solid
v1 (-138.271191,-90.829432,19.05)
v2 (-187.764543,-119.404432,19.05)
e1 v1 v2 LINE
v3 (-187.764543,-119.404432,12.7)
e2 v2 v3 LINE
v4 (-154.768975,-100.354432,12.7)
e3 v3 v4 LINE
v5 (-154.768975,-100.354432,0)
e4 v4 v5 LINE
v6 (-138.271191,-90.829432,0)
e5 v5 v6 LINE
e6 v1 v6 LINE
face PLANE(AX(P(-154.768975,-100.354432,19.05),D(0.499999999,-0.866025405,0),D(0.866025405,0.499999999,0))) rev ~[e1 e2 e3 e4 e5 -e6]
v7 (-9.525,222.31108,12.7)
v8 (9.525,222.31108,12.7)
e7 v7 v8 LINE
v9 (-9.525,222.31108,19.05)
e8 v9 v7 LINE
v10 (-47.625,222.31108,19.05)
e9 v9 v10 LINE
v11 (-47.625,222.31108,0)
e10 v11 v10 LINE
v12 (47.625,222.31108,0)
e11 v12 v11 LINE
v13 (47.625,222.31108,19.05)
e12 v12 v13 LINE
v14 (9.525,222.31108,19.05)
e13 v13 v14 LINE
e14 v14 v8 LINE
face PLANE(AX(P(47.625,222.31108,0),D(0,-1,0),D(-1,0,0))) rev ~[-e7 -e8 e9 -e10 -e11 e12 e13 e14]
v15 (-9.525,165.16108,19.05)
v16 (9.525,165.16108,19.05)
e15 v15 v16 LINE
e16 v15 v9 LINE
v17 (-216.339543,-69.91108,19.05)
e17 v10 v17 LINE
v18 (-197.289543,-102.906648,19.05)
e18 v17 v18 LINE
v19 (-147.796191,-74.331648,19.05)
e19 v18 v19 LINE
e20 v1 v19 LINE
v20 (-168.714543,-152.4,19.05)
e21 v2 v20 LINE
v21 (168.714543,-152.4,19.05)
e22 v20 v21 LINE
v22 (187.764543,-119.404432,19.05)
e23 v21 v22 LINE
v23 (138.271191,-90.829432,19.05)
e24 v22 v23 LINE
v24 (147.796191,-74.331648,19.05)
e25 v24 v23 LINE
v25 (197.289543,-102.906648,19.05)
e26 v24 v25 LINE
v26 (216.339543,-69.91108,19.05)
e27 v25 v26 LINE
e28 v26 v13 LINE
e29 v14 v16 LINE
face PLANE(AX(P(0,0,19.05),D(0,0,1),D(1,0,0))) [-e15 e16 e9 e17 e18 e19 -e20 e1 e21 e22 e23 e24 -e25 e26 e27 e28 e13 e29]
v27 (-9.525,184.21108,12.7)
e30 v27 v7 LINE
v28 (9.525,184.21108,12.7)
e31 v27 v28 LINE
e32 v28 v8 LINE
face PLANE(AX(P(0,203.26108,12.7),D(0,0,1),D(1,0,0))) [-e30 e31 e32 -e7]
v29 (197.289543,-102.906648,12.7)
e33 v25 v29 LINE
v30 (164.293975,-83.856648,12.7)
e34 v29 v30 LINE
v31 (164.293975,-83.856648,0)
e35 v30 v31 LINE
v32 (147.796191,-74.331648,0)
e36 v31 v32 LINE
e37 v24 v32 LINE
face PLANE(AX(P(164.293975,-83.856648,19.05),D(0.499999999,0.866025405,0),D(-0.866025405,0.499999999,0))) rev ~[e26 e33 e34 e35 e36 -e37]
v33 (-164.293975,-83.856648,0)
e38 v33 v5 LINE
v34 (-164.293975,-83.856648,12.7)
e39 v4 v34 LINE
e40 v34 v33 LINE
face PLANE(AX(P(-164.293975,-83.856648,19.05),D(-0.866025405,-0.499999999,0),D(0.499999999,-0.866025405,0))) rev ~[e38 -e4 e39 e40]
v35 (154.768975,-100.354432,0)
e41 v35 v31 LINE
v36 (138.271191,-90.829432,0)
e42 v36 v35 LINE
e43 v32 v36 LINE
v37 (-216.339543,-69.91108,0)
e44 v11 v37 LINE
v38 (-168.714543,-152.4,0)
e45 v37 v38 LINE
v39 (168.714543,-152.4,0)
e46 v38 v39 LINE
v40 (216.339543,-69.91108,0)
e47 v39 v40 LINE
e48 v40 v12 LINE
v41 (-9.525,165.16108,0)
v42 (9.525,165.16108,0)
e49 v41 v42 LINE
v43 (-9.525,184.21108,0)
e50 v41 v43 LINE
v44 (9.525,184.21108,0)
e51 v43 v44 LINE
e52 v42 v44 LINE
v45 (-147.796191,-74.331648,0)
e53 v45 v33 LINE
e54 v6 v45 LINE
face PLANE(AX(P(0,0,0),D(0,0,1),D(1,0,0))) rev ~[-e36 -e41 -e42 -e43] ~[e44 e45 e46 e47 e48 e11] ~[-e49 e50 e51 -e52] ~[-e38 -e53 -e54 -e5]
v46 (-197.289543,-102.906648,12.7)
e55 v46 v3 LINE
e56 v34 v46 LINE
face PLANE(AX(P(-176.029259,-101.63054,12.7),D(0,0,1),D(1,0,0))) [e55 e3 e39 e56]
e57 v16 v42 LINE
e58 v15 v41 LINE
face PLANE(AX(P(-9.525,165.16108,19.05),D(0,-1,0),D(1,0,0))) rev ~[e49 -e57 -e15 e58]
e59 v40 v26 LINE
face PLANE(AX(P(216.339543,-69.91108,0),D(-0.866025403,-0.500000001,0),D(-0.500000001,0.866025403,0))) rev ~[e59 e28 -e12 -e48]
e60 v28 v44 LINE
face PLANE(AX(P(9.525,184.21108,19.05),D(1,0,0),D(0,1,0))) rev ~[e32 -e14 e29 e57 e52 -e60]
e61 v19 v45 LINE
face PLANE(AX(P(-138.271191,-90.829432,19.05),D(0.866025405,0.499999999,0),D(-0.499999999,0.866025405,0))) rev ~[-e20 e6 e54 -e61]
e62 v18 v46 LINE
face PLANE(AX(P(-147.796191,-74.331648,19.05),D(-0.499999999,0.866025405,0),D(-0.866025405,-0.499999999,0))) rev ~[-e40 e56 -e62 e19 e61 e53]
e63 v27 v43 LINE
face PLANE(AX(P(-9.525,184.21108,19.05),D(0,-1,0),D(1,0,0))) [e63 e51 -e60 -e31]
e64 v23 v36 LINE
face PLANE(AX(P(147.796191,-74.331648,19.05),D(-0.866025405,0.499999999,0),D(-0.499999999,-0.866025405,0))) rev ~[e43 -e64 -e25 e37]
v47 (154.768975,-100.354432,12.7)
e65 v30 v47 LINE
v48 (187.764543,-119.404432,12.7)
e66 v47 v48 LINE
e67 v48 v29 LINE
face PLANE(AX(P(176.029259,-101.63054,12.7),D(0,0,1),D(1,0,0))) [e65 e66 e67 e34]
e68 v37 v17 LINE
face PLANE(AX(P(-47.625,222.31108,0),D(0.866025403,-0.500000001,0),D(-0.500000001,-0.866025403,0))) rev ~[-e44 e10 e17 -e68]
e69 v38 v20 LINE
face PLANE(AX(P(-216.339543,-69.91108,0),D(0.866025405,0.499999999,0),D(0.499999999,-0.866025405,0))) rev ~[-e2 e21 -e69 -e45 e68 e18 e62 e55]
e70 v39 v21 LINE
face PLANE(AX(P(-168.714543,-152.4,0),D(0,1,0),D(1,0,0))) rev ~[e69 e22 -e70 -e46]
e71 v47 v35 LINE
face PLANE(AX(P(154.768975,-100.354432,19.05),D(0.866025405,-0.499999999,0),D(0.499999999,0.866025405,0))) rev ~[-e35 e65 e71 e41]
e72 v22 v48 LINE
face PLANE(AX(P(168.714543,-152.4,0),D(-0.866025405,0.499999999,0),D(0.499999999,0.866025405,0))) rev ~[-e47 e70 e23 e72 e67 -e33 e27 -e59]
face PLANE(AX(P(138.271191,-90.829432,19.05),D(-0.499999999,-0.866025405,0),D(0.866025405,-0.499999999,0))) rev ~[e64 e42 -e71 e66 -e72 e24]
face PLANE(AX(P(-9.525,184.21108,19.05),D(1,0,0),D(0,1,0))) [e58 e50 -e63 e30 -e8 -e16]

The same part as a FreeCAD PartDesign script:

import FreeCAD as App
import Part
import Sketcher

V = App.Vector
Q = App.Units.Quantity


def add_polygon(sketch, points):
    """Adds a closed chain of lines whose ends are joined by coincident constraints."""
    first, n = sketch.GeometryCount, len(points)
    for a, b in zip(points, points[1:] + points[:1]):
        sketch.addGeometry(Part.LineSegment(App.Vector(*a, 0), App.Vector(*b, 0)), False)
    for i in range(n):
        sketch.addConstraint(Sketcher.Constraint("Coincident", first + i, 2, first + (i + 1) % n, 1))

doc = App.newDocument("Part")
body = doc.addObject("PartDesign::Body", "Body")

sketch1 = doc.addObject("Sketcher::SketchObject", "Sketch")
body.addObject(sketch1)
sketch1.AttachmentSupport = (doc.XY_Plane, [""])
sketch1.MapMode = "FlatFace"
add_polygon(sketch1, [(48, 222), (-48, 222), (-216, -70), (-169, -152), (169, -152), (216, -70)])
sketch1.addConstraint([
    Sketcher.Constraint("Horizontal", 0),
    Sketcher.Constraint("Horizontal", 3),
    Sketcher.Constraint("Symmetric", 1, 2, 4, 2, -2),
    Sketcher.Constraint("Parallel", 1, 4),
    Sketcher.Constraint("Parallel", 2, 5),
    Sketcher.Constraint("Equal", 2, 4),
    Sketcher.Constraint("DistanceY", 2, 2, -1, 1, Q("6 in")),
    Sketcher.Constraint("Angle", 1, Q("-120 deg")),
    Sketcher.Constraint("DistanceX", 0, 2, 0, 1, Q("3.75 in")),
    Sketcher.Constraint("Distance", 2, Q("3.75 in")),
    Sketcher.Constraint("DistanceX", 3, 1, 3, 2, 337.429086),
])
pad1 = doc.addObject("PartDesign::Pad", "Pad")
body.addObject(pad1)
pad1.Profile = sketch1
pad1.Length = Q("0.75 in")

sketch2 = doc.addObject("Sketcher::SketchObject", "Sketch001")
body.addObject(sketch2)
sketch2.AttachmentSupport = (doc.XY_Plane, [""])
sketch2.MapMode = "FlatFace"
sketch2.AttachmentOffset = App.Placement(V(0, 0, 0.75 * 25.4), App.Rotation())
add_polygon(sketch2, [(-10, 184), (-10, 165), (10, 165), (10, 184)])
add_polygon(sketch2, [(155, -100), (164, -84), (148, -74), (138, -91)])
add_polygon(sketch2, [(-164, -84), (-155, -100), (-138, -91), (-148, -74)])
sketch2.addConstraint([
    Sketcher.Constraint("Vertical", 0),
    Sketcher.Constraint("Horizontal", 1),
    Sketcher.Constraint("Vertical", 2),
    Sketcher.Constraint("Horizontal", 3),
    Sketcher.Constraint("Symmetric", 7, 2, 8, 2, -2),
    Sketcher.Constraint("Symmetric", 6, 2, 9, 2, -2),
    Sketcher.Constraint("Symmetric", 5, 2, 10, 2, -2),
    Sketcher.Constraint("Symmetric", 4, 2, 11, 2, -2),
    Sketcher.Constraint("Perpendicular", 4, 5),
    Sketcher.Constraint("Perpendicular", 5, 6),
    Sketcher.Constraint("Perpendicular", 6, 7),
    Sketcher.Constraint("Equal", 3, 0),
    Sketcher.Constraint("Equal", 4, 5),
    Sketcher.Constraint("Angle", 4, Q("60 deg")),
    Sketcher.Constraint("DistanceX", 1, 1, 1, 2, Q("0.75 in")),
    Sketcher.Constraint("Distance", 4, Q("0.75 in")),
    Sketcher.Constraint("DistanceX", 0, 2, -1, 1, Q("0.375 in")),
    Sketcher.Constraint("DistanceY", -1, 1, 0, 2, 165.16108),
    Sketcher.Constraint("DistanceY", 4, 2, -1, 1, 83.856648),
    Sketcher.Constraint("DistanceX", -1, 1, 5, 2, 147.796191),
])
pocket1 = doc.addObject("PartDesign::Pocket", "Pocket")
body.addObject(pocket1)
pocket1.Profile = sketch2
pocket1.Type = "ThroughAll"

sketch3 = doc.addObject("Sketcher::SketchObject", "Sketch002")
body.addObject(sketch3)
sketch3.AttachmentSupport = (doc.XY_Plane, [""])
sketch3.MapMode = "FlatFace"
sketch3.AttachmentOffset = App.Placement(V(0, 0, 0.75 * 25.4), App.Rotation())
add_polygon(sketch3, [(-155, -100), (-164, -84), (-197, -103), (-188, -119)])
add_polygon(sketch3, [(197, -103), (164, -84), (155, -100), (188, -119)])
add_polygon(sketch3, [(-10, 222), (-10, 184), (10, 184), (10, 222)])
sketch3.addConstraint([
    Sketcher.Constraint("Vertical", 8),
    Sketcher.Constraint("Horizontal", 9),
    Sketcher.Constraint("Vertical", 10),
    Sketcher.Constraint("Horizontal", 11),
    Sketcher.Constraint("Symmetric", 0, 2, 4, 2, -2),
    Sketcher.Constraint("Symmetric", 3, 2, 5, 2, -2),
    Sketcher.Constraint("Symmetric", 2, 2, 6, 2, -2),
    Sketcher.Constraint("Symmetric", 1, 2, 7, 2, -2),
    Sketcher.Constraint("Perpendicular", 0, 1),
    Sketcher.Constraint("Perpendicular", 1, 2),
    Sketcher.Constraint("Perpendicular", 2, 3),
    Sketcher.Constraint("DistanceY", 8, 2, 8, 1, Q("1.5 in")),
    Sketcher.Constraint("Angle", 0, Q("120 deg")),
    Sketcher.Constraint("Distance", 1, Q("1.5 in")),
    Sketcher.Constraint("DistanceX", 9, 1, 9, 2, Q("0.75 in")),
    Sketcher.Constraint("Distance", 0, Q("0.75 in")),
    Sketcher.Constraint("DistanceX", 8, 2, -1, 1, Q("0.375 in")),
    Sketcher.Constraint("DistanceY", 0, 2, -1, 1, 83.856648),
    Sketcher.Constraint("DistanceY", -1, 1, 8, 2, 184.21108),
    Sketcher.Constraint("DistanceX", 3, 2, 4, 2, 319.06295),
])
pocket2 = doc.addObject("PartDesign::Pocket", "Pocket001")
body.addObject(pocket2)
pocket2.Profile = sketch3
pocket2.Length = Q("0.25 in")

doc.recompute()
